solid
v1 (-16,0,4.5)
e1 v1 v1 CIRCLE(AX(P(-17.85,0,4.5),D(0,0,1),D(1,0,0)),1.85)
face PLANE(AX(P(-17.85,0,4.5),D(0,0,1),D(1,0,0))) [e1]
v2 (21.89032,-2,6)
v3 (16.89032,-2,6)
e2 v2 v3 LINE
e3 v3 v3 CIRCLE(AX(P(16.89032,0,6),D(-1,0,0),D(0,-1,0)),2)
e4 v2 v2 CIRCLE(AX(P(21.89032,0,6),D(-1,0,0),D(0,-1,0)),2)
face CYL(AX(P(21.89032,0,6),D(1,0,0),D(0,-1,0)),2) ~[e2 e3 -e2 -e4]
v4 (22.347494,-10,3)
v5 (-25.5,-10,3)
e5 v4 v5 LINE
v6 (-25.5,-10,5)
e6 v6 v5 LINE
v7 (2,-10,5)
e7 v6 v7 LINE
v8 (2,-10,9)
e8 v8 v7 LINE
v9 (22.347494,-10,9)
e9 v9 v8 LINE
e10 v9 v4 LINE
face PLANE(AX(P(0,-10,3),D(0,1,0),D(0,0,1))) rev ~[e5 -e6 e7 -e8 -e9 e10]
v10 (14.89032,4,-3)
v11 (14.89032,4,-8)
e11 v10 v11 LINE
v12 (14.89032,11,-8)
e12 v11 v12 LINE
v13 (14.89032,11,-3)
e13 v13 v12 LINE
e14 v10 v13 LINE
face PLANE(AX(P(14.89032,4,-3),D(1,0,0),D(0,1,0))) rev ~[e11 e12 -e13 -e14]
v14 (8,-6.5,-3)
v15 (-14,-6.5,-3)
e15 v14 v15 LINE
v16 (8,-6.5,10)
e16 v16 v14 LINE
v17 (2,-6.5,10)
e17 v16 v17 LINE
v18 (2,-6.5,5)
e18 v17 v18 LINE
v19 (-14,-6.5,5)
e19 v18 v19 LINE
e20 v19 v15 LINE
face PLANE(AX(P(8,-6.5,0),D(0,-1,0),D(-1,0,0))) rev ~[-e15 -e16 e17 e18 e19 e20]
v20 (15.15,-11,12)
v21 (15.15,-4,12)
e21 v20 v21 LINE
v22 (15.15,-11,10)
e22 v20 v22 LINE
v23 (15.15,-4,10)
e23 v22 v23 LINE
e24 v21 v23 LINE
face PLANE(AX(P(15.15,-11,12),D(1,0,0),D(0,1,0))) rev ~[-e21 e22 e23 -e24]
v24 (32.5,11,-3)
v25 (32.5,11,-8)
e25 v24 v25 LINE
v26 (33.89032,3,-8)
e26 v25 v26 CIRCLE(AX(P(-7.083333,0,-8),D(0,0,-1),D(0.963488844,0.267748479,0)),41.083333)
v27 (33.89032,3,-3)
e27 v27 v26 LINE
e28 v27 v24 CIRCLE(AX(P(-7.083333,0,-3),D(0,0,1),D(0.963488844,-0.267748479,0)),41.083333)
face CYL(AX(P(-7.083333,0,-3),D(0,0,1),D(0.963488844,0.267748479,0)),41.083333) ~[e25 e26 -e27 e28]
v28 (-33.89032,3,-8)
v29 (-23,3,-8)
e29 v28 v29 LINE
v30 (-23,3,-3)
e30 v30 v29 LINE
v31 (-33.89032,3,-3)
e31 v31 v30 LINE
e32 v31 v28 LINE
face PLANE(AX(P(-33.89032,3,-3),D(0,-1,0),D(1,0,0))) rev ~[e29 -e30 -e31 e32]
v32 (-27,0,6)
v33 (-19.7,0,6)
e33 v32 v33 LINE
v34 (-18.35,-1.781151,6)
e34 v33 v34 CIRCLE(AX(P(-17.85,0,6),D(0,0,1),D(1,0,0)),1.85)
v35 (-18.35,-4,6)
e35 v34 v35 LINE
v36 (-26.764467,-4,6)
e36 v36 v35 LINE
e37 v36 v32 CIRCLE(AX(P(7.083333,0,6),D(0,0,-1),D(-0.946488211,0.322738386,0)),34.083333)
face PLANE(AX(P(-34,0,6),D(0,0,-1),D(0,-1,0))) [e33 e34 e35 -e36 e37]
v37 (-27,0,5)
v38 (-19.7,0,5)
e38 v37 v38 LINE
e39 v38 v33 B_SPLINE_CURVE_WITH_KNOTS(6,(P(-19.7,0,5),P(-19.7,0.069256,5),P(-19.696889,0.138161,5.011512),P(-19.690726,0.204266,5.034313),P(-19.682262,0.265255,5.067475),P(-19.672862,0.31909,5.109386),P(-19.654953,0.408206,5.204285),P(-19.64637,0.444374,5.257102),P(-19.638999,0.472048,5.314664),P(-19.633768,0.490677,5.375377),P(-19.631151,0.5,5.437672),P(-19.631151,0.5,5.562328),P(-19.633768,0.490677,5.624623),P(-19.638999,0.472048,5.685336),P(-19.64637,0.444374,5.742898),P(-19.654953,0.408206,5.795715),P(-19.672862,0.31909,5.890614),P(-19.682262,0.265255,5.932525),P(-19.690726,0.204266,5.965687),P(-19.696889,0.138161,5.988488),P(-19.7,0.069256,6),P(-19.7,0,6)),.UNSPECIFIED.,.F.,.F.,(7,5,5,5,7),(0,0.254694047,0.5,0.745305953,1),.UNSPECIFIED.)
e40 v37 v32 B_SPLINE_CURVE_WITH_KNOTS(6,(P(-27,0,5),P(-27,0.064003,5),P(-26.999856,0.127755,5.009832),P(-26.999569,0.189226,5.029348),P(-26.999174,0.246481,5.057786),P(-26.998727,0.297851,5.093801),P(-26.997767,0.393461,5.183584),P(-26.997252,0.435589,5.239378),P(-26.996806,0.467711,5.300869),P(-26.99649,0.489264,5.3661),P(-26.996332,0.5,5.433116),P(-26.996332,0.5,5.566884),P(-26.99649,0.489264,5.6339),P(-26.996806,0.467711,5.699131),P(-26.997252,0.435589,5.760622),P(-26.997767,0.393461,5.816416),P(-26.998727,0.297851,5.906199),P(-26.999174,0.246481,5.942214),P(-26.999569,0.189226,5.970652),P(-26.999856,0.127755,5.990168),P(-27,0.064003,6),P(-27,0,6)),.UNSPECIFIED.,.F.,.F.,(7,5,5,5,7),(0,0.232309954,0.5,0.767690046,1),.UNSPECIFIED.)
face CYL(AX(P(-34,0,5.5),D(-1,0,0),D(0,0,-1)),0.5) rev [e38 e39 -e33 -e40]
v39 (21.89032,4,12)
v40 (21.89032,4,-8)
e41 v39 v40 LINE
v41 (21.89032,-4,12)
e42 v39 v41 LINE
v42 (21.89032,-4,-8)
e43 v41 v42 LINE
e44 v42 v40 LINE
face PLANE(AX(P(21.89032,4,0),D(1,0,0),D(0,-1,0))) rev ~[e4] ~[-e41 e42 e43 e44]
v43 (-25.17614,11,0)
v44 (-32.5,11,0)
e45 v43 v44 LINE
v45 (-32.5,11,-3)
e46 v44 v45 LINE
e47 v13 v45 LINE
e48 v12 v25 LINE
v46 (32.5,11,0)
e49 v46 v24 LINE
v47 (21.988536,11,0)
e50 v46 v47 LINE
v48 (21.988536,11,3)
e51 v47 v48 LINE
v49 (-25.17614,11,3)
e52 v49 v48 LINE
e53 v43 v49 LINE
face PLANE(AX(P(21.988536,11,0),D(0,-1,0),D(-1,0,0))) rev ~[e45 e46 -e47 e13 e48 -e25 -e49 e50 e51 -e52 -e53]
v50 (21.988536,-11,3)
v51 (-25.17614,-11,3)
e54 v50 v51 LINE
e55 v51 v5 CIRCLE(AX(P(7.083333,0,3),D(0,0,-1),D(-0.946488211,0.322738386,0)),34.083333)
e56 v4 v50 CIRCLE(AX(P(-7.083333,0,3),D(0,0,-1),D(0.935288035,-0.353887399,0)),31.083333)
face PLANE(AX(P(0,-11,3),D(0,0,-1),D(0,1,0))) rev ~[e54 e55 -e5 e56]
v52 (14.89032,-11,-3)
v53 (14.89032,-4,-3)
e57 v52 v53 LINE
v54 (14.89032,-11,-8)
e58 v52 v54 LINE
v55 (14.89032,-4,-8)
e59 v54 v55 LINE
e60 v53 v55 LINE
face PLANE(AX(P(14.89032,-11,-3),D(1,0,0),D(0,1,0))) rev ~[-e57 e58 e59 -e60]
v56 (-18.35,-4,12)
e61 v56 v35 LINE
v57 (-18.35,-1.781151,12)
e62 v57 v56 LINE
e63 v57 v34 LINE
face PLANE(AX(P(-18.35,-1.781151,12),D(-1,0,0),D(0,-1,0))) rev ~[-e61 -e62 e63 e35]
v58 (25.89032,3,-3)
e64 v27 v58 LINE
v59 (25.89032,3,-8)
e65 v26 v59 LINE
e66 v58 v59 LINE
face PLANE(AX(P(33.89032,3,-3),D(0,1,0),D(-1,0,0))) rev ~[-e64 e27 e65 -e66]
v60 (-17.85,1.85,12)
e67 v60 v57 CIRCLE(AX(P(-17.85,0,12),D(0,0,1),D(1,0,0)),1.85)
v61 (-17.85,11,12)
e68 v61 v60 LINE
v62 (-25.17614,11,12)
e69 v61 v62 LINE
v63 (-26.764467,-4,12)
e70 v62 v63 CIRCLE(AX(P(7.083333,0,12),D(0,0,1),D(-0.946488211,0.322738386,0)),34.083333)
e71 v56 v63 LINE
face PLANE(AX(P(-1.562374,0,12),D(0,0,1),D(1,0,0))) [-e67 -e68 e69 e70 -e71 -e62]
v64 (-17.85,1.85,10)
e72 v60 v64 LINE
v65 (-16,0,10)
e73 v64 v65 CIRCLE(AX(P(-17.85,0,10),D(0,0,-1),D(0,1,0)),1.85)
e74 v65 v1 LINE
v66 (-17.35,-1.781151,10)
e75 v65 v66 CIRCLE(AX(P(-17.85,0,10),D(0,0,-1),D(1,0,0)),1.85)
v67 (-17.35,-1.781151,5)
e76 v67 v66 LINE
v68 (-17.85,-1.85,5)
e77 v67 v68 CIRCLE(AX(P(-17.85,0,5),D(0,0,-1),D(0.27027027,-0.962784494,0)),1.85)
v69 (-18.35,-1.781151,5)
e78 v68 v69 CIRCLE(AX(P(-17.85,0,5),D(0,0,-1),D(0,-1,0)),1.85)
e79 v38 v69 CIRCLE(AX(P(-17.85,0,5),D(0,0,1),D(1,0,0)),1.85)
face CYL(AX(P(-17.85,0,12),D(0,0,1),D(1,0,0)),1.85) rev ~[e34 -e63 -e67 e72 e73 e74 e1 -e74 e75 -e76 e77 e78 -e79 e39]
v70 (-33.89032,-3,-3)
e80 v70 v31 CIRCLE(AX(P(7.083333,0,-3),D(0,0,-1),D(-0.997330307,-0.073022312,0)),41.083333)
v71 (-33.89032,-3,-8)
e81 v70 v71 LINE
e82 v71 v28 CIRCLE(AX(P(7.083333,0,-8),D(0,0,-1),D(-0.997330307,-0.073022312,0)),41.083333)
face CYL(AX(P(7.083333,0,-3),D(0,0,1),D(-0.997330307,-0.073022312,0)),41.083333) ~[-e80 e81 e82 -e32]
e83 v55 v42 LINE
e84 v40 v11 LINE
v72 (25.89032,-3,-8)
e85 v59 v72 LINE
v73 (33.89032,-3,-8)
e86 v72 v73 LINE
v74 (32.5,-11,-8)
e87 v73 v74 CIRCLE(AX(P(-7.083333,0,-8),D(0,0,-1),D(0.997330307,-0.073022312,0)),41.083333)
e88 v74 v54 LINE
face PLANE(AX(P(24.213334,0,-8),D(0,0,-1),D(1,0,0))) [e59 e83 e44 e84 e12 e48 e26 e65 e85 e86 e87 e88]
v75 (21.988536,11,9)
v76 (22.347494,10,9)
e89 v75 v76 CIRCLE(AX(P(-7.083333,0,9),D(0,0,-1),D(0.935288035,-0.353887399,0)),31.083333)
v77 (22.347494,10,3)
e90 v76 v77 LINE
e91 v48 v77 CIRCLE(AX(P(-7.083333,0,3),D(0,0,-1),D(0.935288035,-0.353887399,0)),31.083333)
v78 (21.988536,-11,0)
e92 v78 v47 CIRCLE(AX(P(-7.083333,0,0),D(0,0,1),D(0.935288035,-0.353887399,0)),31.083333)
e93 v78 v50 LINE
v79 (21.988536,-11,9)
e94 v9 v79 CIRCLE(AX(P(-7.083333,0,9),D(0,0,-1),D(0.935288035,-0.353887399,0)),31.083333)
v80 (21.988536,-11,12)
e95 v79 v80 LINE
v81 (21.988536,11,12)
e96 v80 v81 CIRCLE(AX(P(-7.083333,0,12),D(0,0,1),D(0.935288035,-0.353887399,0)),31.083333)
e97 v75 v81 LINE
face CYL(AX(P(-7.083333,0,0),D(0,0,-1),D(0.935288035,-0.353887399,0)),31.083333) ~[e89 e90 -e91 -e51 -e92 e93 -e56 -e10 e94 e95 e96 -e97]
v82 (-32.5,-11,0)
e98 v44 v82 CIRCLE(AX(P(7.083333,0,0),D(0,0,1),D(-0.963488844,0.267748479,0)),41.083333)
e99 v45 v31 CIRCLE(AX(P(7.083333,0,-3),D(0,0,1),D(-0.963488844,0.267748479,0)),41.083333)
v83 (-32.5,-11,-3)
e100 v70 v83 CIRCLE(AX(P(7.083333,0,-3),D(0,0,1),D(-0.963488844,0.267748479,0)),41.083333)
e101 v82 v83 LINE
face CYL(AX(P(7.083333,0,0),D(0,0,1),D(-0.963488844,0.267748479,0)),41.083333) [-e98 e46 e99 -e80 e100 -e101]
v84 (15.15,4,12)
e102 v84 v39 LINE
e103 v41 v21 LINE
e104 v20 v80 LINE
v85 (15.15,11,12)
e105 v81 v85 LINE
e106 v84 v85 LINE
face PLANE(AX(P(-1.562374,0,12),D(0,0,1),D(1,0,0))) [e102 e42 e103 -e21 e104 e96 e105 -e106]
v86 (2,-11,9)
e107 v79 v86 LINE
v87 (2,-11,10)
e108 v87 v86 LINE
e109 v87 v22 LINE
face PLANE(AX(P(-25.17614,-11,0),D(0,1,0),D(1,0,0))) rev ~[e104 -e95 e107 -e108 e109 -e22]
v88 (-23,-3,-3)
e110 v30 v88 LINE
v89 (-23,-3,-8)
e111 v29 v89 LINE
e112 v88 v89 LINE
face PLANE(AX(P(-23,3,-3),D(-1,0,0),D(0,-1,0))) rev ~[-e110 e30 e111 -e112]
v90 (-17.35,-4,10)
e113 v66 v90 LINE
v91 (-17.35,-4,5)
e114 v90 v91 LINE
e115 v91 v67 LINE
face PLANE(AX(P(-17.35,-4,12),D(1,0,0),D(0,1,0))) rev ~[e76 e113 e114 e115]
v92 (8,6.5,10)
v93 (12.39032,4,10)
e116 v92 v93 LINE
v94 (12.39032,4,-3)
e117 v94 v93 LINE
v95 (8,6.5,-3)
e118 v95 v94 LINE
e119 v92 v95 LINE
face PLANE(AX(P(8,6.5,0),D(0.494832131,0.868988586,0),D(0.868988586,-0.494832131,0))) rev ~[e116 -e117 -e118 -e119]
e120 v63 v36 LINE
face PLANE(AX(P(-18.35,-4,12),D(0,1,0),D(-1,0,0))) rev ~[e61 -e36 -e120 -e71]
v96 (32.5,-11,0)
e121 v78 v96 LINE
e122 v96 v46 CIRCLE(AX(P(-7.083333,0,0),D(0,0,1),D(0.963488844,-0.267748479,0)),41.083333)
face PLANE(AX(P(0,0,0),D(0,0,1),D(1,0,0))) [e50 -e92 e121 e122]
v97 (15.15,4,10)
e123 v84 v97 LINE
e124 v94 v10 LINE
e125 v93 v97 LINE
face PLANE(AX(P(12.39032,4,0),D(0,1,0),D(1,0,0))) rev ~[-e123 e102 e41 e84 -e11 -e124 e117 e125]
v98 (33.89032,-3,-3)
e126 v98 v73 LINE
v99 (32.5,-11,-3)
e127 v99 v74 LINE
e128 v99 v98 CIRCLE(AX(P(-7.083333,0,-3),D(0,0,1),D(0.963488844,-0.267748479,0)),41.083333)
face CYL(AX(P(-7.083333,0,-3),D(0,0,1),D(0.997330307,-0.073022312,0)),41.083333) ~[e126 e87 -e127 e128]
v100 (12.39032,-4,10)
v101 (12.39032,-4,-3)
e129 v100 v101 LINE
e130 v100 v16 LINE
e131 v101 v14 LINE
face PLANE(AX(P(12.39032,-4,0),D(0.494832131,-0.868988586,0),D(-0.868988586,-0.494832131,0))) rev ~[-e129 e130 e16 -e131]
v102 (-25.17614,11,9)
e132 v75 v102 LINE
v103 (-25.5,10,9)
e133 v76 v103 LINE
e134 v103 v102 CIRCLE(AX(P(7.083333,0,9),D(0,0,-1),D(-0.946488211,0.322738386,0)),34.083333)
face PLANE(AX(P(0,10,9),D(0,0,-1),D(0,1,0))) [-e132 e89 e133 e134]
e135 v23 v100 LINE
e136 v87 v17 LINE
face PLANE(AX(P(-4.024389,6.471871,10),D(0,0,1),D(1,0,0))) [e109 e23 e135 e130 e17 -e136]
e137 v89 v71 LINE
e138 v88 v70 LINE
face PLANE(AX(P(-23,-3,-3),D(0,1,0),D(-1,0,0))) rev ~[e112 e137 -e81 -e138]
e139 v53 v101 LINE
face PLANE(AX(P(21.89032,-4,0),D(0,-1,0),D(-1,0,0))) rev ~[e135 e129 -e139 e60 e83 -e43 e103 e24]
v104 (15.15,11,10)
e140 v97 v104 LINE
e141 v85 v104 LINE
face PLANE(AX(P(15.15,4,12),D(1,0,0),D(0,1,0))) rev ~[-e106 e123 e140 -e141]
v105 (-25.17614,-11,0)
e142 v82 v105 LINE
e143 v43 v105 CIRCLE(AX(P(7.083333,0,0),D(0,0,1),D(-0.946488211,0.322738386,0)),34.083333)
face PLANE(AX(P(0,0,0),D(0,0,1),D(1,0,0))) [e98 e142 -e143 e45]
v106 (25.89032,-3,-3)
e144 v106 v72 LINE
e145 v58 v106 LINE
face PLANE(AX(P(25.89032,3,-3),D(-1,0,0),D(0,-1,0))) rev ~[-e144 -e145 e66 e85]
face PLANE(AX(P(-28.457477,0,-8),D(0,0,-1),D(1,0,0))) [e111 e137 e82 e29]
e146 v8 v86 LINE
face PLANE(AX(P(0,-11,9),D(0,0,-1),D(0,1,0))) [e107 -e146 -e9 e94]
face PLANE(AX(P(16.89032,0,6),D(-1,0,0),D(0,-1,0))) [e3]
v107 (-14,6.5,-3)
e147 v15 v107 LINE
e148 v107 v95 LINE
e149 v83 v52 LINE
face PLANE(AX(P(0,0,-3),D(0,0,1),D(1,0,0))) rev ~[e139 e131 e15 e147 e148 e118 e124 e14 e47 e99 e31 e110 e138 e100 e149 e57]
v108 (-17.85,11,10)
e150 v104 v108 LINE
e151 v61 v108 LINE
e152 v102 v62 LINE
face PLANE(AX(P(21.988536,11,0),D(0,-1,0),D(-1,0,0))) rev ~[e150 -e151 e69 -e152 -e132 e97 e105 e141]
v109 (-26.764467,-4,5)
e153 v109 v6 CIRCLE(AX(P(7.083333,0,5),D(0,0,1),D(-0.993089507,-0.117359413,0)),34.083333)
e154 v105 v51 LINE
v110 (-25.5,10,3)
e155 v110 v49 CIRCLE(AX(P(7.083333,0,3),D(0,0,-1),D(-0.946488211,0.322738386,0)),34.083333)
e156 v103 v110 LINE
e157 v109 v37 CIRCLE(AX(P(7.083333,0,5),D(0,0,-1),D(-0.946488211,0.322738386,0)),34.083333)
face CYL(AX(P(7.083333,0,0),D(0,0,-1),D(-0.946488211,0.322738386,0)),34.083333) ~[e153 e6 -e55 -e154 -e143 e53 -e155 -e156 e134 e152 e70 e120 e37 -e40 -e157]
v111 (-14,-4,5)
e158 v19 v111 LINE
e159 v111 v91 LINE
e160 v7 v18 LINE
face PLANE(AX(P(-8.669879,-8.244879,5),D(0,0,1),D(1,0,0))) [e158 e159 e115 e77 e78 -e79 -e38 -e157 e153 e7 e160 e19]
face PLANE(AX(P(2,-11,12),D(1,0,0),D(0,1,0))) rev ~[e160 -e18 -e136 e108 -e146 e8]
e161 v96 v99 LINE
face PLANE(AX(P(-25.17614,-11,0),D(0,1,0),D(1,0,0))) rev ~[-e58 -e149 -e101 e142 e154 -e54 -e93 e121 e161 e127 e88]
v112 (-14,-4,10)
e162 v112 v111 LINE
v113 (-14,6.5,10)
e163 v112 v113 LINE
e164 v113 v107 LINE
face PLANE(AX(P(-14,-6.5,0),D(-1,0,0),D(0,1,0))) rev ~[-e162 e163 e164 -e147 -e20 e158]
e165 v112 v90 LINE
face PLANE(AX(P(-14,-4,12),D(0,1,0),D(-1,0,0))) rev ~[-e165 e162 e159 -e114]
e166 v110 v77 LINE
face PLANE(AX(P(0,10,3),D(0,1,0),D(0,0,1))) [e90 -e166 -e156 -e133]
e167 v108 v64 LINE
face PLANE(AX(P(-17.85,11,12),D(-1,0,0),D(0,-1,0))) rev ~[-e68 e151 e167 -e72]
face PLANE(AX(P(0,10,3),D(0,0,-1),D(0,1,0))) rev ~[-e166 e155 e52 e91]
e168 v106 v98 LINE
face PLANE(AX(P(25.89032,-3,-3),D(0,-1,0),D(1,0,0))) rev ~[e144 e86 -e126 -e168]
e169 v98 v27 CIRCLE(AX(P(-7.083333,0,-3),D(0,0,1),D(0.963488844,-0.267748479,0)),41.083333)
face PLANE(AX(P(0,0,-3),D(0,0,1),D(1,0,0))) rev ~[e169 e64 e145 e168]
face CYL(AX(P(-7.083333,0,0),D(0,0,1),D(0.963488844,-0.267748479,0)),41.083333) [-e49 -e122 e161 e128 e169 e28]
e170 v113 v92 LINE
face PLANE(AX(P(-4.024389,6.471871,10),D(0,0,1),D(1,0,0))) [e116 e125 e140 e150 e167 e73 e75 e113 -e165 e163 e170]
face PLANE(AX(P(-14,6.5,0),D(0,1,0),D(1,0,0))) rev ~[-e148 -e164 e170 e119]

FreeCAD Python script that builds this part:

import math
import FreeCAD as App
import Part
import Sketcher

doc = App.newDocument("Part")
params = doc.addObject("Spreadsheet::Sheet", "Params")
for row, (alias, value) in enumerate([
    ("sketch1_width", "65 mm"),
    ("pad1_length", "3 mm"),
    ("sketch2_width", "8 mm"),
    ("sketch2_width2", "7 mm"),
    ("sketch2_height", "6 mm"),
    ("pad2_length", "5 mm"),
    ("sketch3_width", "22 mm"),
    ("sketch3_height", "8 mm"),
    ("sketch3_height2", "13 mm"),
    ("sketch3_width2", "9.5 mm"),
    ("sketch4_width", "22 mm"),
    ("sketch4_height", "8 mm"),
    ("sketch4_height2", "13 mm"),
    ("sketch4_width2", "9.5 mm"),
    ("pad3_length", "12 mm"),
    ("sketch5_width", "1 mm"),
    ("sketch5_height", "6 mm"),
    ("sketch6_diameter", "3.7 mm"),
    ("pocket3_length", "7.5 mm"),
    ("sketch7_width", "33 mm"),
    ("sketch7_width2", "22 mm"),
    ("sketch7_height", "7 mm"),
    ("sketch7_height2", "13 mm"),
    ("sketch7_radius", "1.85 mm"),
    ("pocket4_length", "2 mm"),
    ("sketch8_width", "16 mm"),
    ("sketch8_radius", "1.85 mm"),
    ("sketch8_height", "4.5 mm"),
    ("sketch8_height2", "2.5 mm"),
    ("sketch8_width2", "3.35 mm"),
    ("pocket5_length", "7 mm"),
    ("sketch9_radius", "0.5 mm"),
    ("sketch9_width", "4 mm"),
    ("pocket6_length", "16.65 mm"),
    ("sketch10_diameter", "4 mm"),
    ("pad4_length", "5 mm"),
], start=1):
    params.set(f"A{row}", alias)
    params.set(f"B{row}", "=" + value)
    params.setAlias(f"B{row}", alias)

body = doc.addObject("PartDesign::Body", "Body")

# Sketch on XY plane
sketch1 = body.newObject("Sketcher::SketchObject", "Sketch")
sketch1.AttachmentSupport = (doc.getObject("XY_Plane"), [""])
sketch1.MapMode = "FlatFace"
sketch1.addGeometry([
    Part.ArcOfCircle(Part.Circle(App.Vector(-7, 0, 0), App.Vector(0, 0, 1), 41), math.radians(-16), math.radians(16)),
    Part.LineSegment(App.Vector(32, 11, 0), App.Vector(-32, 11, 0)),
    Part.ArcOfCircle(Part.Circle(App.Vector(7, 0, 0), App.Vector(0, 0, 1), 41), math.radians(164), math.radians(196)),
    Part.LineSegment(App.Vector(-32, -11, 0), App.Vector(32, -11, 0)),
], False)
sketch1.addConstraint([
    Sketcher.Constraint("Coincident", 0, 2, 1, 1),
    Sketcher.Constraint("Coincident", 1, 2, 2, 1),
    Sketcher.Constraint("Coincident", 2, 2, 3, 1),
    Sketcher.Constraint("Coincident", 3, 2, 0, 1),
    Sketcher.Constraint("Horizontal", 1),
    Sketcher.Constraint("Horizontal", 3),
    Sketcher.Constraint("Equal", 0, 2),
    Sketcher.Constraint("Symmetric", 0, 3, 2, 3, -1, 1),
    Sketcher.Constraint("Symmetric", 1, 2, 2, 2, -1),
    Sketcher.Constraint("DistanceX", 1, 2, 1, 1, 65.0),
    Sketcher.Constraint("DistanceY", -1, 1, 0, 2, 11.0),
    Sketcher.Constraint("Radius", 0, 41.083333),
])
sketch1.setExpression("Constraints[9]", "Params.sketch1_width")
pad1 = body.newObject("PartDesign::Pad", "Pad")
pad1.Profile = sketch1
pad1.setExpression("Length", "Params.pad1_length")
pad1.Reversed = True

# Sketch on XY plane
sketch2 = body.newObject("Sketcher::SketchObject", "Sketch001")
sketch2.AttachmentSupport = (doc.getObject("XY_Plane"), [""])
sketch2.MapMode = "FlatFace"
sketch2.AttachmentOffset = App.Placement(App.Vector(0, 0, -3), App.Rotation())
sketch2.addGeometry([
    Part.LineSegment(App.Vector(-23, -3, 0), App.Vector(-34, -3, 0)),  # 0
    Part.ArcOfCircle(Part.Circle(App.Vector(7, 0, 0), App.Vector(0, 0, 1), 41), math.radians(175.81), math.radians(184.19)),  # 1
    Part.LineSegment(App.Vector(-34, 3, 0), App.Vector(-23, 3, 0)),  # 2
    Part.LineSegment(App.Vector(-23, 3, 0), App.Vector(-23, -3, 0)),  # 3
    Part.LineSegment(App.Vector(26, -3, 0), App.Vector(34, -3, 0)),  # 4
    Part.ArcOfCircle(Part.Circle(App.Vector(-7, 0, 0), App.Vector(0, 0, 1), 41), math.radians(-15.53), math.radians(-4.19)),  # 5
    Part.LineSegment(App.Vector(32, -11, 0), App.Vector(15, -11, 0)),  # 6
    Part.LineSegment(App.Vector(15, -11, 0), App.Vector(15, -4, 0)),  # 7
    Part.LineSegment(App.Vector(15, -4, 0), App.Vector(22, -4, 0)),  # 8
    Part.LineSegment(App.Vector(22, -4, 0), App.Vector(22, 4, 0)),  # 9
    Part.LineSegment(App.Vector(22, 4, 0), App.Vector(15, 4, 0)),  # 10
    Part.LineSegment(App.Vector(15, 4, 0), App.Vector(15, 11, 0)),  # 11
    Part.LineSegment(App.Vector(15, 11, 0), App.Vector(32, 11, 0)),  # 12
    Part.ArcOfCircle(Part.Circle(App.Vector(-7, 0, 0), App.Vector(0, 0, 1), 41), math.radians(4.19), math.radians(15.53)),  # 13
    Part.LineSegment(App.Vector(34, 3, 0), App.Vector(26, 3, 0)),  # 14
    Part.LineSegment(App.Vector(26, 3, 0), App.Vector(26, -3, 0)),  # 15
], False)
sketch2.addConstraint([
    Sketcher.Constraint("Coincident", 0, 2, 1, 2),
    Sketcher.Constraint("Coincident", 1, 1, 2, 1),
    Sketcher.Constraint("Coincident", 2, 2, 3, 1),
    Sketcher.Constraint("Coincident", 3, 2, 0, 1),
    Sketcher.Constraint("Coincident", 4, 2, 5, 2),
    Sketcher.Constraint("Coincident", 5, 1, 6, 1),
    Sketcher.Constraint("Coincident", 6, 2, 7, 1),
    Sketcher.Constraint("Coincident", 7, 2, 8, 1),
    Sketcher.Constraint("Coincident", 8, 2, 9, 1),
    Sketcher.Constraint("Coincident", 9, 2, 10, 1),
    Sketcher.Constraint("Coincident", 10, 2, 11, 1),
    Sketcher.Constraint("Coincident", 11, 2, 12, 1),
    Sketcher.Constraint("Coincident", 12, 2, 13, 2),
    Sketcher.Constraint("Coincident", 13, 1, 14, 1),
    Sketcher.Constraint("Coincident", 14, 2, 15, 1),
    Sketcher.Constraint("Coincident", 15, 2, 4, 1),
    Sketcher.Constraint("Horizontal", 0),
    Sketcher.Constraint("Horizontal", 2),
    Sketcher.Constraint("Vertical", 3),
    Sketcher.Constraint("Horizontal", 4),
    Sketcher.Constraint("Horizontal", 6),
    Sketcher.Constraint("Vertical", 7),
    Sketcher.Constraint("Horizontal", 8),
    Sketcher.Constraint("Vertical", 9),
    Sketcher.Constraint("Horizontal", 10),
    Sketcher.Constraint("Vertical", 11),
    Sketcher.Constraint("Horizontal", 12),
    Sketcher.Constraint("Horizontal", 14),
    Sketcher.Constraint("Vertical", 15),
    Sketcher.Constraint("Coincident", 13, 3, 5, 3),
    Sketcher.Constraint("Equal", 1, 5),
    Sketcher.Constraint("Equal", 5, 13),
    Sketcher.Constraint("Symmetric", 1, 3, 5, 3, -1, 1),
    Sketcher.Constraint("Symmetric", 0, 2, 4, 2, -2),
    Sketcher.Constraint("Symmetric", 7, 2, 10, 2, -1),
    Sketcher.Constraint("Horizontal", 2, 2, 13, 1),
    Sketcher.Constraint("Vertical", 0, 2, 1, 1),
    Sketcher.Constraint("Vertical", 5, 1, 12, 2),
    Sketcher.Constraint("Equal", 10, 7),
    Sketcher.Constraint("Equal", 14, 9),
    Sketcher.Constraint("DistanceX", 4, 1, 4, 2, 8.0),
    Sketcher.Constraint("DistanceX", 8, 1, 8, 2, 7.0),
    Sketcher.Constraint("DistanceY", 3, 2, 3, 1, 6.0),
    Sketcher.Constraint("DistanceX", 2, 2, -1, 1, 23.0),
    Sketcher.Constraint("DistanceX", 6, 2, 4, 2, 19.0),
    Sketcher.Constraint("DistanceX", -1, 1, 5, 1, 32.5),
    Sketcher.Constraint("Radius", 1, 41.083333),
])
sketch2.setExpression("Constraints[40]", "Params.sketch2_width")
sketch2.setExpression("Constraints[41]", "Params.sketch2_width2")
sketch2.setExpression("Constraints[42]", "Params.sketch2_height")
pad2 = body.newObject("PartDesign::Pad", "Pad001")
pad2.Profile = sketch2
pad2.setExpression("Length", "Params.pad2_length")
pad2.Reversed = True

# Sketch on XY plane
sketch3 = body.newObject("Sketcher::SketchObject", "Sketch002")
sketch3.AttachmentSupport = (doc.getObject("XY_Plane"), [""])
sketch3.MapMode = "FlatFace"
sketch3.AttachmentOffset = App.Placement(App.Vector(0, 0, -3), App.Rotation())
sketch3.addGeometry([
    Part.LineSegment(App.Vector(22, 4, 0), App.Vector(22, -4, 0)),  # 0
    Part.LineSegment(App.Vector(22, -4, 0), App.Vector(12, -4, 0)),  # 1
    Part.LineSegment(App.Vector(12, -4, 0), App.Vector(8, -6, 0)),  # 2
    Part.LineSegment(App.Vector(8, -6, 0), App.Vector(-14, -6, 0)),  # 3
    Part.LineSegment(App.Vector(-14, -6, 0), App.Vector(-14, 6, 0)),  # 4
    Part.LineSegment(App.Vector(-14, 6, 0), App.Vector(8, 6, 0)),  # 5
    Part.LineSegment(App.Vector(8, 6, 0), App.Vector(12, 4, 0)),  # 6
    Part.LineSegment(App.Vector(12, 4, 0), App.Vector(22, 4, 0)),  # 7
], False)
sketch3.addConstraint([
    Sketcher.Constraint("Coincident", 0, 2, 1, 1),
    Sketcher.Constraint("Coincident", 1, 2, 2, 1),
    Sketcher.Constraint("Coincident", 2, 2, 3, 1),
    Sketcher.Constraint("Coincident", 3, 2, 4, 1),
    Sketcher.Constraint("Coincident", 4, 2, 5, 1),
    Sketcher.Constraint("Coincident", 5, 2, 6, 1),
    Sketcher.Constraint("Coincident", 6, 2, 7, 1),
    Sketcher.Constraint("Coincident", 7, 2, 0, 1),
    Sketcher.Constraint("Vertical", 0),
    Sketcher.Constraint("Horizontal", 1),
    Sketcher.Constraint("Horizontal", 3),
    Sketcher.Constraint("Vertical", 4),
    Sketcher.Constraint("Horizontal", 5),
    Sketcher.Constraint("Horizontal", 7),
    Sketcher.Constraint("Symmetric", 2, 2, 5, 2, -1),
    Sketcher.Constraint("Symmetric", 1, 2, 6, 2, -1),
    Sketcher.Constraint("DistanceX", 3, 2, 3, 1, 22.0),
    Sketcher.Constraint("DistanceY", 0, 2, 0, 1, 8.0),
    Sketcher.Constraint("DistanceY", 4, 1, 4, 2, 13.0),
    Sketcher.Constraint("DistanceX", 1, 2, 1, 1, 9.5),
    Sketcher.Constraint("DistanceX", -1, 1, 2, 2, 8.0),
    Sketcher.Constraint("Distance", 2, 5.052218),
])
sketch3.setExpression("Constraints[16]", "Params.sketch3_width")
sketch3.setExpression("Constraints[17]", "Params.sketch3_height")
sketch3.setExpression("Constraints[18]", "Params.sketch3_height2")
sketch3.setExpression("Constraints[19]", "Params.sketch3_width2")
pocket1 = body.newObject("PartDesign::Pocket", "Pocket")
pocket1.Profile = sketch3
pocket1.Type = "ThroughAll"
pocket1.Reversed = True

# Sketch on XY plane
sketch4 = body.newObject("Sketcher::SketchObject", "Sketch003")
sketch4.AttachmentSupport = (doc.getObject("XY_Plane"), [""])
sketch4.MapMode = "FlatFace"
sketch4.addGeometry([
    Part.LineSegment(App.Vector(22, 11, 0), App.Vector(-25, 11, 0)),  # 0
    Part.ArcOfCircle(Part.Circle(App.Vector(7, 0, 0), App.Vector(0, 0, 1), 34), math.radians(161), math.radians(199)),  # 1
    Part.LineSegment(App.Vector(-25, -11, 0), App.Vector(22, -11, 0)),  # 2
    Part.ArcOfCircle(Part.Circle(App.Vector(-7, 0, 0), App.Vector(0, 0, 1), 31), math.radians(-21), math.radians(21)),  # 3
    Part.LineSegment(App.Vector(8, 6, 0), App.Vector(12, 4, 0)),  # 4
    Part.LineSegment(App.Vector(12, 4, 0), App.Vector(22, 4, 0)),  # 5
    Part.LineSegment(App.Vector(22, 4, 0), App.Vector(22, -4, 0)),  # 6
    Part.LineSegment(App.Vector(22, -4, 0), App.Vector(12, -4, 0)),  # 7
    Part.LineSegment(App.Vector(12, -4, 0), App.Vector(8, -6, 0)),  # 8
    Part.LineSegment(App.Vector(8, -6, 0), App.Vector(-14, -6, 0)),  # 9
    Part.LineSegment(App.Vector(-14, -6, 0), App.Vector(-14, 6, 0)),  # 10
    Part.LineSegment(App.Vector(-14, 6, 0), App.Vector(8, 6, 0)),  # 11
], False)
sketch4.addConstraint([
    Sketcher.Constraint("Coincident", 0, 2, 1, 1),
    Sketcher.Constraint("Coincident", 1, 2, 2, 1),
    Sketcher.Constraint("Coincident", 2, 2, 3, 1),
    Sketcher.Constraint("Coincident", 3, 2, 0, 1),
    Sketcher.Constraint("Coincident", 4, 2, 5, 1),
    Sketcher.Constraint("Coincident", 5, 2, 6, 1),
    Sketcher.Constraint("Coincident", 6, 2, 7, 1),
    Sketcher.Constraint("Coincident", 7, 2, 8, 1),
    Sketcher.Constraint("Coincident", 8, 2, 9, 1),
    Sketcher.Constraint("Coincident", 9, 2, 10, 1),
    Sketcher.Constraint("Coincident", 10, 2, 11, 1),
    Sketcher.Constraint("Coincident", 11, 2, 4, 1),
    Sketcher.Constraint("Horizontal", 0),
    Sketcher.Constraint("Horizontal", 2),
    Sketcher.Constraint("Horizontal", 5),
    Sketcher.Constraint("Vertical", 6),
    Sketcher.Constraint("Horizontal", 7),
    Sketcher.Constraint("Horizontal", 9),
    Sketcher.Constraint("Vertical", 10),
    Sketcher.Constraint("Horizontal", 11),
    Sketcher.Constraint("Symmetric", 1, 3, 3, 3, -1, 1),
    Sketcher.Constraint("Symmetric", 0, 2, 1, 2, -1),
    Sketcher.Constraint("Symmetric", 4, 2, 7, 2, -1),
    Sketcher.Constraint("Symmetric", 8, 2, 11, 2, -1),
    Sketcher.Constraint("DistanceX", 9, 2, 9, 1, 22.0),
    Sketcher.Constraint("DistanceY", 6, 2, 6, 1, 8.0),
    Sketcher.Constraint("DistanceY", 10, 1, 10, 2, 13.0),
    Sketcher.Constraint("DistanceX", 5, 1, 5, 2, 9.5),
    Sketcher.Constraint("DistanceY", -1, 1, 0, 2, 11.0),
    Sketcher.Constraint("DistanceX", -1, 1, 8, 2, 8.0),
    Sketcher.Constraint("Radius", 1, 34.083333),
    Sketcher.Constraint("Radius", 3, 31.083333),
    Sketcher.Constraint("Distance", 4, 5.052218),
    Sketcher.Constraint("DistanceX", 0, 2, 0, 1, 47.164676),
])
sketch4.setExpression("Constraints[24]", "Params.sketch4_width")
sketch4.setExpression("Constraints[25]", "Params.sketch4_height")
sketch4.setExpression("Constraints[26]", "Params.sketch4_height2")
sketch4.setExpression("Constraints[27]", "Params.sketch4_width2")
pad3 = body.newObject("PartDesign::Pad", "Pad002")
pad3.Profile = sketch4
pad3.setExpression("Length", "Params.pad3_length")

# Sketch on YZ plane
sketch5 = body.newObject("Sketcher::SketchObject", "Sketch004")
sketch5.AttachmentSupport = (doc.getObject("YZ_Plane"), [""])
sketch5.MapMode = "FlatFace"
sketch5.addGeometry([
    Part.LineSegment(App.Vector(-11, 9, 0), App.Vector(-11, 3, 0)),  # 0
    Part.LineSegment(App.Vector(-11, 3, 0), App.Vector(-10, 3, 0)),  # 1
    Part.LineSegment(App.Vector(-10, 3, 0), App.Vector(-10, 9, 0)),  # 2
    Part.LineSegment(App.Vector(-10, 9, 0), App.Vector(-11, 9, 0)),  # 3
    Part.LineSegment(App.Vector(10, 9, 0), App.Vector(10, 3, 0)),  # 4
    Part.LineSegment(App.Vector(10, 3, 0), App.Vector(11, 3, 0)),  # 5
    Part.LineSegment(App.Vector(11, 3, 0), App.Vector(11, 9, 0)),  # 6
    Part.LineSegment(App.Vector(11, 9, 0), App.Vector(10, 9, 0)),  # 7
], False)
sketch5.addConstraint([
    Sketcher.Constraint("Coincident", 0, 2, 1, 1),
    Sketcher.Constraint("Coincident", 1, 2, 2, 1),
    Sketcher.Constraint("Coincident", 2, 2, 3, 1),
    Sketcher.Constraint("Coincident", 3, 2, 0, 1),
    Sketcher.Constraint("Coincident", 4, 2, 5, 1),
    Sketcher.Constraint("Coincident", 5, 2, 6, 1),
    Sketcher.Constraint("Coincident", 6, 2, 7, 1),
    Sketcher.Constraint("Coincident", 7, 2, 4, 1),
    Sketcher.Constraint("Vertical", 0),
    Sketcher.Constraint("Horizontal", 1),
    Sketcher.Constraint("Vertical", 2),
    Sketcher.Constraint("Horizontal", 3),
    Sketcher.Constraint("Vertical", 4),
    Sketcher.Constraint("Horizontal", 5),
    Sketcher.Constraint("Vertical", 6),
    Sketcher.Constraint("Horizontal", 7),
    Sketcher.Constraint("Symmetric", 1, 2, 4, 2, -2),
    Sketcher.Constraint("Symmetric", 3, 2, 6, 2, -2),
    Sketcher.Constraint("DistanceX", 1, 1, 1, 2, 1.0),
    Sketcher.Constraint("DistanceY", 0, 2, 0, 1, 6.0),
    Sketcher.Constraint("DistanceX", 0, 2, -1, 1, 11.0),
    Sketcher.Constraint("DistanceY", -1, 1, 0, 2, 3.0),
])
sketch5.setExpression("Constraints[18]", "Params.sketch5_width")
sketch5.setExpression("Constraints[19]", "Params.sketch5_height")
pocket2 = body.newObject("PartDesign::Pocket", "Pocket001")
pocket2.Profile = sketch5
pocket2.Type = "ThroughAll"
pocket2.Midplane = True

# Sketch on XY plane
sketch6 = body.newObject("Sketcher::SketchObject", "Sketch005")
sketch6.AttachmentSupport = (doc.getObject("XY_Plane"), [""])
sketch6.MapMode = "FlatFace"
sketch6.AttachmentOffset = App.Placement(App.Vector(0, 0, 12), App.Rotation())
sketch6.addGeometry(Part.Circle(App.Vector(-17.9, 0, 0), App.Vector(0, 0, 1), 1.9), False)
sketch6.addConstraint([
    Sketcher.Constraint("PointOnObject", 0, 3, -1),
    Sketcher.Constraint("Diameter", 0, 3.7),
    Sketcher.Constraint("DistanceX", 0, 3, -1, 1, 17.85),
])
sketch6.setExpression("Constraints[1]", "Params.sketch6_diameter")
pocket3 = body.newObject("PartDesign::Pocket", "Pocket002")
pocket3.Profile = sketch6
pocket3.setExpression("Length", "Params.pocket3_length")

# Sketch on XY plane
sketch7 = body.newObject("Sketcher::SketchObject", "Sketch006")
sketch7.AttachmentSupport = (doc.getObject("XY_Plane"), [""])
sketch7.MapMode = "FlatFace"
sketch7.AttachmentOffset = App.Placement(App.Vector(0, 0, 12), App.Rotation())
sketch7.addGeometry([
    Part.LineSegment(App.Vector(15.2, 11, 0), App.Vector(-17.9, 11, 0)),  # 0
    Part.LineSegment(App.Vector(-17.9, 11, 0), App.Vector(-17.9, 1.9, 0)),  # 1
    Part.ArcOfCircle(Part.Circle(App.Vector(-17.9, 0, 0), App.Vector(0, 0, 1), 1.9), math.radians(0), math.radians(90)),  # 2
    Part.ArcOfCircle(Part.Circle(App.Vector(-17.9, 0, 0), App.Vector(0, 0, 1), 1.9), math.radians(-74), math.radians(0)),  # 3
    Part.LineSegment(App.Vector(-17.4, -1.8, 0), App.Vector(-17.4, -4, 0)),  # 4
    Part.LineSegment(App.Vector(-17.4, -4, 0), App.Vector(-17.9, -4, 0)),  # 5
    Part.LineSegment(App.Vector(-17.9, -4, 0), App.Vector(-17.9, -11, 0)),  # 6
    Part.LineSegment(App.Vector(-17.9, -11, 0), App.Vector(15.2, -11, 0)),  # 7
    Part.LineSegment(App.Vector(15.2, -11, 0), App.Vector(15.2, -4, 0)),  # 8
    Part.LineSegment(App.Vector(15.2, -4, 0), App.Vector(12.4, -4, 0)),  # 9
    Part.LineSegment(App.Vector(12.4, -4, 0), App.Vector(8, -6.5, 0)),  # 10
    Part.LineSegment(App.Vector(8, -6.5, 0), App.Vector(-14, -6.5, 0)),  # 11
    Part.LineSegment(App.Vector(-14, -6.5, 0), App.Vector(-14, 6.5, 0)),  # 12
    Part.LineSegment(App.Vector(-14, 6.5, 0), App.Vector(8, 6.5, 0)),  # 13
    Part.LineSegment(App.Vector(8, 6.5, 0), App.Vector(12.4, 4, 0)),  # 14
    Part.LineSegment(App.Vector(12.4, 4, 0), App.Vector(15.2, 4, 0)),  # 15
    Part.LineSegment(App.Vector(15.2, 4, 0), App.Vector(15.2, 11, 0)),  # 16
], False)
sketch7.addConstraint([
    Sketcher.Constraint("Coincident", 0, 2, 1, 1),
    Sketcher.Constraint("Coincident", 1, 2, 2, 2),
    Sketcher.Constraint("Tangent", 2, 1, 3, 2),
    Sketcher.Constraint("Coincident", 3, 1, 4, 1),
    Sketcher.Constraint("Coincident", 4, 2, 5, 1),
    Sketcher.Constraint("Coincident", 5, 2, 6, 1),
    Sketcher.Constraint("Coincident", 6, 2, 7, 1),
    Sketcher.Constraint("Coincident", 7, 2, 8, 1),
    Sketcher.Constraint("Coincident", 8, 2, 9, 1),
    Sketcher.Constraint("Coincident", 9, 2, 10, 1),
    Sketcher.Constraint("Coincident", 10, 2, 11, 1),
    Sketcher.Constraint("Coincident", 11, 2, 12, 1),
    Sketcher.Constraint("Coincident", 12, 2, 13, 1),
    Sketcher.Constraint("Coincident", 13, 2, 14, 1),
    Sketcher.Constraint("Coincident", 14, 2, 15, 1),
    Sketcher.Constraint("Coincident", 15, 2, 16, 1),
    Sketcher.Constraint("Coincident", 16, 2, 0, 1),
    Sketcher.Constraint("Horizontal", 0),
    Sketcher.Constraint("Vertical", 1),
    Sketcher.Constraint("Vertical", 4),
    Sketcher.Constraint("Horizontal", 5),
    Sketcher.Constraint("Vertical", 6),
    Sketcher.Constraint("Horizontal", 7),
    Sketcher.Constraint("Vertical", 8),
    Sketcher.Constraint("Horizontal", 9),
    Sketcher.Constraint("Horizontal", 11),
    Sketcher.Constraint("Vertical", 12),
    Sketcher.Constraint("Horizontal", 13),
    Sketcher.Constraint("Horizontal", 15),
    Sketcher.Constraint("Vertical", 16),
    Sketcher.Constraint("Equal", 2, 3),
    Sketcher.Constraint("Symmetric", 0, 2, 6, 2, -1),
    Sketcher.Constraint("Symmetric", 10, 2, 13, 2, -1),
    Sketcher.Constraint("Symmetric", 9, 2, 14, 2, -1),
    Sketcher.Constraint("PointOnObject", 2, 3, -1),
    Sketcher.Constraint("PointOnObject", 2, 1, -1),
    Sketcher.Constraint("Horizontal", 5, 2, 8, 2),
    Sketcher.Constraint("Vertical", 3, 3, 0, 2),
    Sketcher.Constraint("Vertical", 8, 2, 15, 2),
    Sketcher.Constraint("DistanceX", 0, 2, 0, 1, 33.0),
    Sketcher.Constraint("DistanceX", 11, 2, 11, 1, 22.0),
    Sketcher.Constraint("DistanceY", 6, 2, 6, 1, 7.0),
    Sketcher.Constraint("DistanceY", 12, 1, 12, 2, 13.0),
    Sketcher.Constraint("Radius", 2, 1.85),
    Sketcher.Constraint("DistanceX", 5, 2, 5, 1, 0.5),
    Sketcher.Constraint("DistanceY", -1, 1, 0, 2, 11.0),
    Sketcher.Constraint("DistanceX", 2, 1, -1, 1, 16.0),
    Sketcher.Constraint("DistanceX", -1, 1, 10, 2, 8.0),
    Sketcher.Constraint("DistanceX", 9, 2, 9, 1, 2.75968),
])
sketch7.setExpression("Constraints[39]", "Params.sketch7_width")
sketch7.setExpression("Constraints[40]", "Params.sketch7_width2")
sketch7.setExpression("Constraints[41]", "Params.sketch7_height")
sketch7.setExpression("Constraints[42]", "Params.sketch7_height2")
sketch7.setExpression("Constraints[43]", "Params.sketch7_radius")
pocket4 = body.newObject("PartDesign::Pocket", "Pocket003")
pocket4.Profile = sketch7
pocket4.setExpression("Length", "Params.pocket4_length")

# Sketch on XY plane
sketch8 = body.newObject("Sketcher::SketchObject", "Sketch007")
sketch8.AttachmentSupport = (doc.getObject("XY_Plane"), [""])
sketch8.MapMode = "FlatFace"
sketch8.AttachmentOffset = App.Placement(App.Vector(0, 0, 12), App.Rotation())
sketch8.addGeometry([
    Part.LineSegment(App.Vector(2, -11, 0), App.Vector(2, -6.5, 0)),  # 0
    Part.LineSegment(App.Vector(2, -6.5, 0), App.Vector(-14, -6.5, 0)),  # 1
    Part.LineSegment(App.Vector(-14, -6.5, 0), App.Vector(-14, -4, 0)),  # 2
    Part.LineSegment(App.Vector(-14, -4, 0), App.Vector(-17.4, -4, 0)),  # 3
    Part.LineSegment(App.Vector(-17.4, -4, 0), App.Vector(-17.4, -1.8, 0)),  # 4
    Part.ArcOfCircle(Part.Circle(App.Vector(-17.9, 0, 0), App.Vector(0, 0, 1), 1.8), math.radians(-90), math.radians(-74.32)),  # 5
    Part.ArcOfCircle(Part.Circle(App.Vector(-17.9, 0, 0), App.Vector(0, 0, 1), 1.8), math.radians(-105.68), math.radians(-90)),  # 6
    Part.LineSegment(App.Vector(-18.4, -1.8, 0), App.Vector(-18.4, -4, 0)),  # 7
    Part.LineSegment(App.Vector(-18.4, -4, 0), App.Vector(-26.8, -4, 0)),  # 8
    Part.ArcOfCircle(Part.Circle(App.Vector(7.1, 0, 0), App.Vector(0, 0, 1), 34.1), math.radians(-173.26), math.radians(-161.17)),  # 9
    Part.LineSegment(App.Vector(-25.2, -11, 0), App.Vector(2, -11, 0)),  # 10
], False)
sketch8.addConstraint([
    Sketcher.Constraint("Coincident", 0, 2, 1, 1),
    Sketcher.Constraint("Coincident", 1, 2, 2, 1),
    Sketcher.Constraint("Coincident", 2, 2, 3, 1),
    Sketcher.Constraint("Coincident", 3, 2, 4, 1),
    Sketcher.Constraint("Coincident", 4, 2, 5, 2),
    Sketcher.Constraint("Tangent", 5, 1, 6, 2),
    Sketcher.Constraint("Coincident", 6, 1, 7, 1),
    Sketcher.Constraint("Coincident", 7, 2, 8, 1),
    Sketcher.Constraint("Coincident", 8, 2, 9, 1),
    Sketcher.Constraint("Coincident", 9, 2, 10, 1),
    Sketcher.Constraint("Coincident", 10, 2, 0, 1),
    Sketcher.Constraint("Vertical", 0),
    Sketcher.Constraint("Horizontal", 1),
    Sketcher.Constraint("Vertical", 2),
    Sketcher.Constraint("Horizontal", 3),
    Sketcher.Constraint("Vertical", 4),
    Sketcher.Constraint("Vertical", 7),
    Sketcher.Constraint("Horizontal", 8),
    Sketcher.Constraint("Horizontal", 10),
    Sketcher.Constraint("Equal", 5, 6),
    Sketcher.Constraint("PointOnObject", 5, 3, -1),
    Sketcher.Constraint("PointOnObject", 9, 3, -1),
    Sketcher.Constraint("Horizontal", 4, 2, 6, 1),
    Sketcher.Constraint("Horizontal", 3, 2, 7, 2),
    Sketcher.Constraint("Vertical", 6, 3, 5, 1),
    Sketcher.Constraint("DistanceX", 1, 2, 1, 1, 16.0),
    Sketcher.Constraint("Radius", 5, 1.85),
    Sketcher.Constraint("DistanceY", 0, 1, 0, 2, 4.5),
    Sketcher.Constraint("DistanceY", 2, 1, 2, 2, 2.5),
    Sketcher.Constraint("DistanceX", -1, 1, 0, 2, 2.0),
    Sketcher.Constraint("DistanceY", 2, 2, -1, 1, 4.0),
    Sketcher.Constraint("DistanceX", 6, 1, 4, 2, 1.0),
    Sketcher.Constraint("DistanceX", 3, 2, 3, 1, 3.35),
    Sketcher.Constraint("Radius", 9, 34.083333),
    Sketcher.Constraint("DistanceX", 10, 1, 10, 2, 27.17614),
])
sketch8.setExpression("Constraints[25]", "Params.sketch8_width")
sketch8.setExpression("Constraints[26]", "Params.sketch8_radius")
sketch8.setExpression("Constraints[27]", "Params.sketch8_height")
sketch8.setExpression("Constraints[28]", "Params.sketch8_height2")
sketch8.setExpression("Constraints[32]", "Params.sketch8_width2")
pocket5 = body.newObject("PartDesign::Pocket", "Pocket004")
pocket5.Profile = sketch8
pocket5.setExpression("Length", "Params.pocket5_length")

# Sketch on YZ plane
sketch9 = body.newObject("Sketcher::SketchObject", "Sketch008")
sketch9.AttachmentSupport = (doc.getObject("YZ_Plane"), [""])
sketch9.MapMode = "FlatFace"
sketch9.AttachmentOffset = App.Placement(App.Vector(0, 0, -34), App.Rotation())
sketch9.addGeometry([
    Part.LineSegment(App.Vector(-4, 6, 0), App.Vector(-4, 5, 0)),
    Part.LineSegment(App.Vector(-4, 5, 0), App.Vector(0, 5, 0)),
    Part.ArcOfCircle(Part.Circle(App.Vector(0, 5.5, 0), App.Vector(0, 0, 1), 0.5), math.radians(-90), math.radians(90)),
    Part.LineSegment(App.Vector(0, 6, 0), App.Vector(-4, 6, 0)),
], False)
sketch9.addConstraint([
    Sketcher.Constraint("Coincident", 0, 2, 1, 1),
    Sketcher.Constraint("Tangent", 1, 2, 2, 1),
    Sketcher.Constraint("Tangent", 2, 2, 3, 1),
    Sketcher.Constraint("Coincident", 3, 2, 0, 1),
    Sketcher.Constraint("Vertical", 0),
    Sketcher.Constraint("Horizontal", 1),
    Sketcher.Constraint("Horizontal", 3),
    Sketcher.Constraint("PointOnObject", 2, 3, -2),
    Sketcher.Constraint("Radius", 2, 0.5),
    Sketcher.Constraint("DistanceX", 1, 1, 1, 2, 4.0),
    Sketcher.Constraint("DistanceY", -1, 1, 0, 2, 5.0),
])
sketch9.setExpression("Constraints[8]", "Params.sketch9_radius")
sketch9.setExpression("Constraints[9]", "Params.sketch9_width")
pocket6 = body.newObject("PartDesign::Pocket", "Pocket005")
pocket6.Profile = sketch9
pocket6.setExpression("Length", "Params.pocket6_length")
pocket6.Reversed = True

# Sketch on YZ plane
sketch10 = body.newObject("Sketcher::SketchObject", "Sketch009")
sketch10.AttachmentSupport = (doc.getObject("YZ_Plane"), [""])
sketch10.MapMode = "FlatFace"
sketch10.AttachmentOffset = App.Placement(App.Vector(0, 0, 21.89032), App.Rotation())
sketch10.addGeometry(Part.Circle(App.Vector(0, 6, 0), App.Vector(0, 0, 1), 2), False)
sketch10.addConstraint([
    Sketcher.Constraint("PointOnObject", 0, 3, -2),
    Sketcher.Constraint("Diameter", 0, 4.0),
    Sketcher.Constraint("DistanceY", -1, 1, 0, 3, 6.0),
])
sketch10.setExpression("Constraints[1]", "Params.sketch10_diameter")
pad4 = body.newObject("PartDesign::Pad", "Pad003")
pad4.Profile = sketch10
pad4.setExpression("Length", "Params.pad4_length")
pad4.Reversed = True

doc.recompute()
